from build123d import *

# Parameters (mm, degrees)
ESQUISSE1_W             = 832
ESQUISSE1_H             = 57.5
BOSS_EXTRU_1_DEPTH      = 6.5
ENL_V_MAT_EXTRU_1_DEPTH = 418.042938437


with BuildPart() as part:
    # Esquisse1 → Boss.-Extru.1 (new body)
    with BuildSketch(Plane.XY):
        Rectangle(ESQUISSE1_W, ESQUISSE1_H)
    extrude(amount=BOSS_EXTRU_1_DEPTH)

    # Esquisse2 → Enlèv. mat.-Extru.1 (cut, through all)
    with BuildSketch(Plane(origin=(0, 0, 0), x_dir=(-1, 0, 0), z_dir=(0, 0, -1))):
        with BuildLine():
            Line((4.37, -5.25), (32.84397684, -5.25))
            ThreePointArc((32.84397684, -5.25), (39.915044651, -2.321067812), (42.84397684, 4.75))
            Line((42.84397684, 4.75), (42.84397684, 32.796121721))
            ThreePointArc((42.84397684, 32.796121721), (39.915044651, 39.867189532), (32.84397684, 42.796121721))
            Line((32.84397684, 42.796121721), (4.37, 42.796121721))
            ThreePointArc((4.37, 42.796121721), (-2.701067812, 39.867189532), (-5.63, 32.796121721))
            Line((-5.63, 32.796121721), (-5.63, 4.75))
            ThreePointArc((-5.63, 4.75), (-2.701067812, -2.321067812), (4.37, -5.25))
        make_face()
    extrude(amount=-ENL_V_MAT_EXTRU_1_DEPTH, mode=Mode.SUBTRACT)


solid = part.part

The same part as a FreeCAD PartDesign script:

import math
import FreeCAD as App
import Part
import Sketcher
from FreeCAD import Vector
Q = App.Units.Quantity

doc = App.newDocument("Part")
body = doc.addObject("PartDesign::Body", "Body")

# Sketch on XY plane
sketch1 = body.newObject("Sketcher::SketchObject", "Sketch")
sketch1.AttachmentSupport = (doc.getObject("XY_Plane"), [""])
sketch1.MapMode = "FlatFace"
sketch1.addGeometry([
    Part.LineSegment(Vector(-416, 29, 0), Vector(-416, -29, 0)),
    Part.LineSegment(Vector(-416, -29, 0), Vector(416, -29, 0)),
    Part.LineSegment(Vector(416, -29, 0), Vector(416, 29, 0)),
    Part.LineSegment(Vector(416, 29, 0), Vector(-416, 29, 0)),
], False)
sketch1.addConstraint([
    Sketcher.Constraint("Coincident", 0, 2, 1, 1),
    Sketcher.Constraint("Coincident", 1, 2, 2, 1),
    Sketcher.Constraint("Coincident", 2, 2, 3, 1),
    Sketcher.Constraint("Coincident", 3, 2, 0, 1),
    Sketcher.Constraint("Vertical", 0),
    Sketcher.Constraint("Horizontal", 1),
    Sketcher.Constraint("Vertical", 2),
    Sketcher.Constraint("Horizontal", 3),
    Sketcher.Constraint("Symmetric", 0, 2, 2, 2, -1, 1),
    Sketcher.Constraint("DistanceX", 1, 1, 1, 2, Q("832 mm")),
    Sketcher.Constraint("DistanceY", 0, 2, 0, 1, Q("57.5 mm")),
])
pad1 = body.newObject("PartDesign::Pad", "Pad")
pad1.Profile = sketch1
pad1.Length = 6.5

# Sketch on XY plane
sketch2 = body.newObject("Sketcher::SketchObject", "Sketch001")
sketch2.AttachmentSupport = (doc.getObject("XY_Plane"), [""])
sketch2.MapMode = "FlatFace"
sketch2.addGeometry([
    Part.LineSegment(Vector(-4, -5, 0), Vector(-33, -5, 0)),  # 0
    Part.ArcOfCircle(Part.Circle(Vector(-33, 5, 0), Vector(0, 0, 1), 10), math.radians(-180), math.radians(-90)),  # 1
    Part.LineSegment(Vector(-43, 5, 0), Vector(-43, 33, 0)),  # 2
    Part.ArcOfCircle(Part.Circle(Vector(-33, 33, 0), Vector(0, 0, 1), 10), math.radians(90), math.radians(180)),  # 3
    Part.LineSegment(Vector(-33, 43, 0), Vector(-4, 43, 0)),  # 4
    Part.ArcOfCircle(Part.Circle(Vector(-4, 33, 0), Vector(0, 0, 1), 10), math.radians(0), math.radians(90)),  # 5
    Part.LineSegment(Vector(6, 33, 0), Vector(6, 5, 0)),  # 6
    Part.ArcOfCircle(Part.Circle(Vector(-4, 5, 0), Vector(0, 0, 1), 10), math.radians(-90), math.radians(0)),  # 7
], False)
sketch2.addConstraint([
    Sketcher.Constraint("Tangent", 0, 2, 1, 2),
    Sketcher.Constraint("Tangent", 1, 1, 2, 1),
    Sketcher.Constraint("Tangent", 2, 2, 3, 2),
    Sketcher.Constraint("Tangent", 3, 1, 4, 1),
    Sketcher.Constraint("Tangent", 4, 2, 5, 2),
    Sketcher.Constraint("Tangent", 5, 1, 6, 1),
    Sketcher.Constraint("Tangent", 6, 2, 7, 2),
    Sketcher.Constraint("Tangent", 7, 1, 0, 1),
    Sketcher.Constraint("Horizontal", 0),
    Sketcher.Constraint("Vertical", 2),
    Sketcher.Constraint("Horizontal", 4),
    Sketcher.Constraint("Vertical", 6),
    Sketcher.Constraint("Equal", 1, 3),
    Sketcher.Constraint("Equal", 3, 5),
    Sketcher.Constraint("Equal", 5, 7),
    Sketcher.Constraint("Radius", 1, Q("10 mm")),
    Sketcher.Constraint("DistanceY", -1, 1, 1, 3, Q("4.75 mm")),
    Sketcher.Constraint("DistanceX", 5, 3, -1, 1, Q("4.37 mm")),
    Sketcher.Constraint("DistanceY", 2, 1, 2, 2, Q("28.046122 mm")),
    Sketcher.Constraint("DistanceX", 0, 2, 0, 1, Q("28.473977 mm")),
])
pocket1 = body.newObject("PartDesign::Pocket", "Pocket")
pocket1.Profile = sketch2
pocket1.Type = "ThroughAll"
pocket1.Reversed = True

doc.recompute()
